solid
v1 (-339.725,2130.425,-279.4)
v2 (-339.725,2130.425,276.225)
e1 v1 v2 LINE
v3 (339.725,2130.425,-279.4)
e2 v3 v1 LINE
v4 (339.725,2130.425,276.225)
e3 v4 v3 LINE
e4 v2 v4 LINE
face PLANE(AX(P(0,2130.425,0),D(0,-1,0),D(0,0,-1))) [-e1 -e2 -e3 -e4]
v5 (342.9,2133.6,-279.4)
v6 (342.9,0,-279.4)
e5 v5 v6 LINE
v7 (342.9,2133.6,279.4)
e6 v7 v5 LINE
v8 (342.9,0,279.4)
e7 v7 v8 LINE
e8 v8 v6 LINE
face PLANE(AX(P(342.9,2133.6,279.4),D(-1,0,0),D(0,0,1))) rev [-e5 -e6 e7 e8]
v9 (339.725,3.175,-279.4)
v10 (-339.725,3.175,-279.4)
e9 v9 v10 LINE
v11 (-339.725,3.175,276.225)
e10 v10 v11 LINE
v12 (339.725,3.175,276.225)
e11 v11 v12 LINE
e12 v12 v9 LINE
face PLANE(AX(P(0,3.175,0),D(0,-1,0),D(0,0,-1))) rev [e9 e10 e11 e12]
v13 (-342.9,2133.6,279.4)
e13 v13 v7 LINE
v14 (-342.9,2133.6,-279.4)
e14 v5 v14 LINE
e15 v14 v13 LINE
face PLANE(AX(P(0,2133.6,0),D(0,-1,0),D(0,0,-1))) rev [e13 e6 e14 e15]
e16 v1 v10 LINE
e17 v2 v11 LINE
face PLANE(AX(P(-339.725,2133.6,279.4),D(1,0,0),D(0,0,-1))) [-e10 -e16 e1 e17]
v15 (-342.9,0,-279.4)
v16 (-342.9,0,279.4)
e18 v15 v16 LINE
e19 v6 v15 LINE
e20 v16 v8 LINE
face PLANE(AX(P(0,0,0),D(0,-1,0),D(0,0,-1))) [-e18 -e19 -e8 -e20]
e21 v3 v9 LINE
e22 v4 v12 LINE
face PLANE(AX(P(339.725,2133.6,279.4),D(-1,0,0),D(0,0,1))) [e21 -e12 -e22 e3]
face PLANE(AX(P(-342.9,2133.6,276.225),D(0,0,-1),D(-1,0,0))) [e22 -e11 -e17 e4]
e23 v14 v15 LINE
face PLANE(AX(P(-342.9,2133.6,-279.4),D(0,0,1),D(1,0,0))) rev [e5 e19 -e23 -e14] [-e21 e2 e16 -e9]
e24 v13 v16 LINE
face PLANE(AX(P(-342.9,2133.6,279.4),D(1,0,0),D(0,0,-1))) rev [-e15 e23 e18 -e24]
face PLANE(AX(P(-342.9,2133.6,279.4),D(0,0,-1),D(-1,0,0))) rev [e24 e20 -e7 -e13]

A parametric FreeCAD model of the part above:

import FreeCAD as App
import Part
import Sketcher

V = App.Vector
Q = App.Units.Quantity


def faces_at(feature, points):
    """Names of the faces that lie closest to the given points."""
    faces = feature.Shape.Faces
    near = lambda p: min(range(len(faces)), key=lambda i: faces[i].distToShape(Part.Vertex(*p))[0])
    return sorted({f"Face{near(p) + 1}" for p in points})

doc = App.newDocument("Part")
body = doc.addObject("PartDesign::Body", "Body")

# Sketch on XZ plane
sketch1 = body.newObject("Sketcher::SketchObject", "Sketch")
sketch1.AttachmentSupport = (doc.getObject("XZ_Plane"), [""])
sketch1.MapMode = "FlatFace"
sketch1.addGeometry(Part.LineSegment(V(-343, -279, 0), V(-343, 279, 0)), False)
sketch1.addGeometry(Part.LineSegment(V(-343, 279, 0), V(343, 279, 0)), False)
sketch1.addGeometry(Part.LineSegment(V(343, 279, 0), V(343, -279, 0)), False)
sketch1.addGeometry(Part.LineSegment(V(343, -279, 0), V(-343, -279, 0)), False)
sketch1.addConstraint(Sketcher.Constraint("Coincident", 0, 2, 1, 1))
sketch1.addConstraint(Sketcher.Constraint("Coincident", 1, 2, 2, 1))
sketch1.addConstraint(Sketcher.Constraint("Coincident", 2, 2, 3, 1))
sketch1.addConstraint(Sketcher.Constraint("Coincident", 3, 2, 0, 1))
sketch1.addConstraint(Sketcher.Constraint("Vertical", 0))
sketch1.addConstraint(Sketcher.Constraint("Horizontal", 1))
sketch1.addConstraint(Sketcher.Constraint("Vertical", 2))
sketch1.addConstraint(Sketcher.Constraint("Horizontal", 3))
sketch1.addConstraint(Sketcher.Constraint("Symmetric", 0, 2, 2, 2, -1, 1))
sketch1.addConstraint(Sketcher.Constraint("DistanceX", 1, 1, 1, 2, Q("27 in")))
sketch1.addConstraint(Sketcher.Constraint("DistanceY", 0, 1, 0, 2, Q("22 in")))
pad1 = body.newObject("PartDesign::Pad", "Pad")
pad1.Profile = sketch1
pad1.Length = Q("84 in")
pad1.Reversed = True
doc.recompute()

thickness = body.newObject("PartDesign::Thickness", "Thickness")
thickness.Base = (pad1, faces_at(pad1, [(0, 1066.8, -279.4)]))
thickness.Value = Q("0.125 in")
thickness.Reversed = True
thickness.Join = "Intersection"

doc.recompute()
